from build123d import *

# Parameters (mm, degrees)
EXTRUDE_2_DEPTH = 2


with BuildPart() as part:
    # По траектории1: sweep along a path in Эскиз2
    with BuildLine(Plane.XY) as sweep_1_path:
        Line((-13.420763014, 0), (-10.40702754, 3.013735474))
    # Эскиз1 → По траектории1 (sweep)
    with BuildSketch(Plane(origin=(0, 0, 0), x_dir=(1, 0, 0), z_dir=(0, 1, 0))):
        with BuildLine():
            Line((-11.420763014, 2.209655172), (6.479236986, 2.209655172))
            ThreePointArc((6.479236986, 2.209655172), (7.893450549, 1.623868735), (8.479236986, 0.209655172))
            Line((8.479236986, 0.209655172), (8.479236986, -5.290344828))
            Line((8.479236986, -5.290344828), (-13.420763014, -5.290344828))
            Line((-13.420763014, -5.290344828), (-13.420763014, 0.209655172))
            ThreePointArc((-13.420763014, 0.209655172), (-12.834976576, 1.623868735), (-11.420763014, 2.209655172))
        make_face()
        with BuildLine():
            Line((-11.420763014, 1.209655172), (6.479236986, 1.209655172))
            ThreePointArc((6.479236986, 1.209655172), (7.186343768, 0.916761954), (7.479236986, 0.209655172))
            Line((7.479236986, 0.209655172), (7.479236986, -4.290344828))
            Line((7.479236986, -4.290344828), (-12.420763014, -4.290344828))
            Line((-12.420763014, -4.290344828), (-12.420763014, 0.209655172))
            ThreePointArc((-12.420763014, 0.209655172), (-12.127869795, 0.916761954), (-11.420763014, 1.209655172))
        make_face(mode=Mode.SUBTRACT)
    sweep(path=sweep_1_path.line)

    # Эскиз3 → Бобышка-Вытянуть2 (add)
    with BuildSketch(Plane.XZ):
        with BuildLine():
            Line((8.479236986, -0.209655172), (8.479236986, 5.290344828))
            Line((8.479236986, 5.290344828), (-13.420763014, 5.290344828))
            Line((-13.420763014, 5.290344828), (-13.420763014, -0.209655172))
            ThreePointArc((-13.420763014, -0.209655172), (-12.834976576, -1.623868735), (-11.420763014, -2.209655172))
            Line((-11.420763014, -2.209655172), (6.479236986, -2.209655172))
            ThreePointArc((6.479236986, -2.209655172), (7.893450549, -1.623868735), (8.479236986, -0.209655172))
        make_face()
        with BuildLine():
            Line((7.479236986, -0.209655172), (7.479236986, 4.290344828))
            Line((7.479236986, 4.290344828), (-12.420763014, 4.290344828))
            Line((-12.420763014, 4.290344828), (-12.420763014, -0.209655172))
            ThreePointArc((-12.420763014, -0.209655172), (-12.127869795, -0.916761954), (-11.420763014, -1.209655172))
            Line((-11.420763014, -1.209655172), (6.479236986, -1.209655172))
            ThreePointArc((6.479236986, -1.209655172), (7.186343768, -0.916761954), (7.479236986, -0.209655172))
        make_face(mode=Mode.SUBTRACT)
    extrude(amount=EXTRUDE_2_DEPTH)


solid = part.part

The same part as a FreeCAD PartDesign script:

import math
import FreeCAD as App
import Part
import Sketcher

doc = App.newDocument("Part")
body = doc.addObject("PartDesign::Body", "Body")

# Sketch on XZ plane
sketch1 = body.newObject("Sketcher::SketchObject", "Sketch")
sketch1.AttachmentSupport = (doc.getObject("XZ_Plane"), [""])
sketch1.MapMode = "FlatFace"
sketch1.addGeometry([
    Part.LineSegment(App.Vector(6.5, -2.2, 0), App.Vector(-11.4, -2.2, 0)),  # 0
    Part.ArcOfCircle(Part.Circle(App.Vector(-11.4, -0.2, 0), App.Vector(0, 0, 1), 2), math.radians(180), math.radians(270)),  # 1
    Part.LineSegment(App.Vector(-13.4, -0.2, 0), App.Vector(-13.4, 5.3, 0)),  # 2
    Part.LineSegment(App.Vector(-13.4, 5.3, 0), App.Vector(8.5, 5.3, 0)),  # 3
    Part.LineSegment(App.Vector(8.5, 5.3, 0), App.Vector(8.5, -0.2, 0)),  # 4
    Part.ArcOfCircle(Part.Circle(App.Vector(6.5, -0.2, 0), App.Vector(0, 0, 1), 2), math.radians(-90), math.radians(0)),  # 5
    Part.LineSegment(App.Vector(-11.4, -1.2, 0), App.Vector(6.5, -1.2, 0)),  # 6
    Part.ArcOfCircle(Part.Circle(App.Vector(6.5, -0.2, 0), App.Vector(0, 0, 1), 1), math.radians(-90), math.radians(0)),  # 7
    Part.LineSegment(App.Vector(7.5, -0.2, 0), App.Vector(7.5, 4.3, 0)),  # 8
    Part.LineSegment(App.Vector(7.5, 4.3, 0), App.Vector(-12.4, 4.3, 0)),  # 9
    Part.LineSegment(App.Vector(-12.4, 4.3, 0), App.Vector(-12.4, -0.2, 0)),  # 10
    Part.ArcOfCircle(Part.Circle(App.Vector(-11.4, -0.2, 0), App.Vector(0, 0, 1), 1), math.radians(180), math.radians(270)),  # 11
], False)
sketch1.addConstraint([
    Sketcher.Constraint("Tangent", 0, 2, 1, 2),
    Sketcher.Constraint("Tangent", 1, 1, 2, 1),
    Sketcher.Constraint("Coincident", 2, 2, 3, 1),
    Sketcher.Constraint("Coincident", 3, 2, 4, 1),
    Sketcher.Constraint("Tangent", 4, 2, 5, 2),
    Sketcher.Constraint("Tangent", 5, 1, 0, 1),
    Sketcher.Constraint("Tangent", 6, 2, 7, 1),
    Sketcher.Constraint("Tangent", 7, 2, 8, 1),
    Sketcher.Constraint("Coincident", 8, 2, 9, 1),
    Sketcher.Constraint("Coincident", 9, 2, 10, 1),
    Sketcher.Constraint("Tangent", 10, 2, 11, 1),
    Sketcher.Constraint("Tangent", 11, 2, 6, 1),
    Sketcher.Constraint("Horizontal", 0),
    Sketcher.Constraint("Vertical", 2),
    Sketcher.Constraint("Horizontal", 3),
    Sketcher.Constraint("Vertical", 4),
    Sketcher.Constraint("Horizontal", 6),
    Sketcher.Constraint("Vertical", 8),
    Sketcher.Constraint("Horizontal", 9),
    Sketcher.Constraint("Vertical", 10),
    Sketcher.Constraint("Coincident", 7, 3, 5, 3),
    Sketcher.Constraint("Coincident", 11, 3, 1, 3),
    Sketcher.Constraint("Equal", 1, 5),
    Sketcher.Constraint("Radius", 1, 2.0),
    Sketcher.Constraint("Radius", 7, 1.0),
    Sketcher.Constraint("DistanceX", 0, 2, 0, 1, 17.9),
    Sketcher.Constraint("DistanceY", 2, 1, 2, 2, 5.5),
    Sketcher.Constraint("DistanceY", 8, 1, 8, 2, 4.5),
    Sketcher.Constraint("DistanceX", 1, 3, -1, 1, 11.420763),
    Sketcher.Constraint("DistanceY", 1, 3, -1, 1, 0.209655),
])

# Sketch on an angled plane
sketch2 = body.newObject("Sketcher::SketchObject", "Sketch001")
sketch2.Placement = App.Placement(App.Vector(-6.710382, 6.710382, 0), App.Rotation(App.Vector(0.707106781, 0.707106781, 0), App.Vector(0, 0, 0.999999999), App.Vector(0.707106781, -0.707106781, 0), "ZXY"))
sketch2.addGeometry(Part.LineSegment(App.Vector(-9.5, 0, 0), App.Vector(-5.2, 0, 0)), False)
sketch2.addConstraint([
    Sketcher.Constraint("Horizontal", 0),
    Sketcher.Constraint("PointOnObject", 0, 1, -1),
    Sketcher.Constraint("DistanceX", 0, 1, 0, 2, 4.262066),
    Sketcher.Constraint("DistanceX", 0, 1, -1, 1, 9.489913),
])
doc.recompute()

additivepipe = body.newObject("PartDesign::AdditivePipe", "AdditivePipe")
additivepipe.Profile = sketch1
additivepipe.Spine = (sketch2, ["Edge1"])

# Sketch on XZ plane
sketch3 = body.newObject("Sketcher::SketchObject", "Sketch002")
sketch3.AttachmentSupport = (doc.getObject("XZ_Plane"), [""])
sketch3.MapMode = "FlatFace"
sketch3.addGeometry([
    Part.LineSegment(App.Vector(8.5, -0.2, 0), App.Vector(8.5, 5.3, 0)),  # 0
    Part.LineSegment(App.Vector(8.5, 5.3, 0), App.Vector(-13.4, 5.3, 0)),  # 1
    Part.LineSegment(App.Vector(-13.4, 5.3, 0), App.Vector(-13.4, -0.2, 0)),  # 2
    Part.ArcOfCircle(Part.Circle(App.Vector(-11.4, -0.2, 0), App.Vector(0, 0, 1), 2), math.radians(180), math.radians(270)),  # 3
    Part.LineSegment(App.Vector(-11.4, -2.2, 0), App.Vector(6.5, -2.2, 0)),  # 4
    Part.ArcOfCircle(Part.Circle(App.Vector(6.5, -0.2, 0), App.Vector(0, 0, 1), 2), math.radians(-90), math.radians(0)),  # 5
    Part.LineSegment(App.Vector(7.5, 4.3, 0), App.Vector(7.5, -0.2, 0)),  # 6
    Part.ArcOfCircle(Part.Circle(App.Vector(6.5, -0.2, 0), App.Vector(0, 0, 1), 1), math.radians(-90), math.radians(0)),  # 7
    Part.LineSegment(App.Vector(6.5, -1.2, 0), App.Vector(-11.4, -1.2, 0)),  # 8
    Part.ArcOfCircle(Part.Circle(App.Vector(-11.4, -0.2, 0), App.Vector(0, 0, 1), 1), math.radians(180), math.radians(270)),  # 9
    Part.LineSegment(App.Vector(-12.4, -0.2, 0), App.Vector(-12.4, 4.3, 0)),  # 10
    Part.LineSegment(App.Vector(-12.4, 4.3, 0), App.Vector(7.5, 4.3, 0)),  # 11
], False)
sketch3.addConstraint([
    Sketcher.Constraint("Coincident", 0, 2, 1, 1),
    Sketcher.Constraint("Coincident", 1, 2, 2, 1),
    Sketcher.Constraint("Tangent", 2, 2, 3, 1),
    Sketcher.Constraint("Tangent", 3, 2, 4, 1),
    Sketcher.Constraint("Tangent", 4, 2, 5, 1),
    Sketcher.Constraint("Tangent", 5, 2, 0, 1),
    Sketcher.Constraint("Tangent", 6, 2, 7, 2),
    Sketcher.Constraint("Tangent", 7, 1, 8, 1),
    Sketcher.Constraint("Tangent", 8, 2, 9, 2),
    Sketcher.Constraint("Tangent", 9, 1, 10, 1),
    Sketcher.Constraint("Coincident", 10, 2, 11, 1),
    Sketcher.Constraint("Coincident", 11, 2, 6, 1),
    Sketcher.Constraint("Vertical", 0),
    Sketcher.Constraint("Horizontal", 1),
    Sketcher.Constraint("Vertical", 2),
    Sketcher.Constraint("Horizontal", 4),
    Sketcher.Constraint("Vertical", 6),
    Sketcher.Constraint("Horizontal", 8),
    Sketcher.Constraint("Vertical", 10),
    Sketcher.Constraint("Horizontal", 11),
    Sketcher.Constraint("Coincident", 7, 3, 5, 3),
    Sketcher.Constraint("Coincident", 9, 3, 3, 3),
    Sketcher.Constraint("Equal", 3, 5),
    Sketcher.Constraint("Radius", 3, 2.0),
    Sketcher.Constraint("Radius", 7, 1.0),
    Sketcher.Constraint("DistanceX", 1, 2, 1, 1, 21.9),
    Sketcher.Constraint("DistanceY", 0, 1, 0, 2, 5.5),
    Sketcher.Constraint("DistanceY", 6, 2, 6, 1, 4.5),
    Sketcher.Constraint("DistanceX", 3, 3, -1, 1, 11.420763),
    Sketcher.Constraint("DistanceY", 3, 3, -1, 1, 0.209655),
])
pad1 = body.newObject("PartDesign::Pad", "Pad")
pad1.Profile = sketch3
pad1.Length = 2

doc.recompute()
